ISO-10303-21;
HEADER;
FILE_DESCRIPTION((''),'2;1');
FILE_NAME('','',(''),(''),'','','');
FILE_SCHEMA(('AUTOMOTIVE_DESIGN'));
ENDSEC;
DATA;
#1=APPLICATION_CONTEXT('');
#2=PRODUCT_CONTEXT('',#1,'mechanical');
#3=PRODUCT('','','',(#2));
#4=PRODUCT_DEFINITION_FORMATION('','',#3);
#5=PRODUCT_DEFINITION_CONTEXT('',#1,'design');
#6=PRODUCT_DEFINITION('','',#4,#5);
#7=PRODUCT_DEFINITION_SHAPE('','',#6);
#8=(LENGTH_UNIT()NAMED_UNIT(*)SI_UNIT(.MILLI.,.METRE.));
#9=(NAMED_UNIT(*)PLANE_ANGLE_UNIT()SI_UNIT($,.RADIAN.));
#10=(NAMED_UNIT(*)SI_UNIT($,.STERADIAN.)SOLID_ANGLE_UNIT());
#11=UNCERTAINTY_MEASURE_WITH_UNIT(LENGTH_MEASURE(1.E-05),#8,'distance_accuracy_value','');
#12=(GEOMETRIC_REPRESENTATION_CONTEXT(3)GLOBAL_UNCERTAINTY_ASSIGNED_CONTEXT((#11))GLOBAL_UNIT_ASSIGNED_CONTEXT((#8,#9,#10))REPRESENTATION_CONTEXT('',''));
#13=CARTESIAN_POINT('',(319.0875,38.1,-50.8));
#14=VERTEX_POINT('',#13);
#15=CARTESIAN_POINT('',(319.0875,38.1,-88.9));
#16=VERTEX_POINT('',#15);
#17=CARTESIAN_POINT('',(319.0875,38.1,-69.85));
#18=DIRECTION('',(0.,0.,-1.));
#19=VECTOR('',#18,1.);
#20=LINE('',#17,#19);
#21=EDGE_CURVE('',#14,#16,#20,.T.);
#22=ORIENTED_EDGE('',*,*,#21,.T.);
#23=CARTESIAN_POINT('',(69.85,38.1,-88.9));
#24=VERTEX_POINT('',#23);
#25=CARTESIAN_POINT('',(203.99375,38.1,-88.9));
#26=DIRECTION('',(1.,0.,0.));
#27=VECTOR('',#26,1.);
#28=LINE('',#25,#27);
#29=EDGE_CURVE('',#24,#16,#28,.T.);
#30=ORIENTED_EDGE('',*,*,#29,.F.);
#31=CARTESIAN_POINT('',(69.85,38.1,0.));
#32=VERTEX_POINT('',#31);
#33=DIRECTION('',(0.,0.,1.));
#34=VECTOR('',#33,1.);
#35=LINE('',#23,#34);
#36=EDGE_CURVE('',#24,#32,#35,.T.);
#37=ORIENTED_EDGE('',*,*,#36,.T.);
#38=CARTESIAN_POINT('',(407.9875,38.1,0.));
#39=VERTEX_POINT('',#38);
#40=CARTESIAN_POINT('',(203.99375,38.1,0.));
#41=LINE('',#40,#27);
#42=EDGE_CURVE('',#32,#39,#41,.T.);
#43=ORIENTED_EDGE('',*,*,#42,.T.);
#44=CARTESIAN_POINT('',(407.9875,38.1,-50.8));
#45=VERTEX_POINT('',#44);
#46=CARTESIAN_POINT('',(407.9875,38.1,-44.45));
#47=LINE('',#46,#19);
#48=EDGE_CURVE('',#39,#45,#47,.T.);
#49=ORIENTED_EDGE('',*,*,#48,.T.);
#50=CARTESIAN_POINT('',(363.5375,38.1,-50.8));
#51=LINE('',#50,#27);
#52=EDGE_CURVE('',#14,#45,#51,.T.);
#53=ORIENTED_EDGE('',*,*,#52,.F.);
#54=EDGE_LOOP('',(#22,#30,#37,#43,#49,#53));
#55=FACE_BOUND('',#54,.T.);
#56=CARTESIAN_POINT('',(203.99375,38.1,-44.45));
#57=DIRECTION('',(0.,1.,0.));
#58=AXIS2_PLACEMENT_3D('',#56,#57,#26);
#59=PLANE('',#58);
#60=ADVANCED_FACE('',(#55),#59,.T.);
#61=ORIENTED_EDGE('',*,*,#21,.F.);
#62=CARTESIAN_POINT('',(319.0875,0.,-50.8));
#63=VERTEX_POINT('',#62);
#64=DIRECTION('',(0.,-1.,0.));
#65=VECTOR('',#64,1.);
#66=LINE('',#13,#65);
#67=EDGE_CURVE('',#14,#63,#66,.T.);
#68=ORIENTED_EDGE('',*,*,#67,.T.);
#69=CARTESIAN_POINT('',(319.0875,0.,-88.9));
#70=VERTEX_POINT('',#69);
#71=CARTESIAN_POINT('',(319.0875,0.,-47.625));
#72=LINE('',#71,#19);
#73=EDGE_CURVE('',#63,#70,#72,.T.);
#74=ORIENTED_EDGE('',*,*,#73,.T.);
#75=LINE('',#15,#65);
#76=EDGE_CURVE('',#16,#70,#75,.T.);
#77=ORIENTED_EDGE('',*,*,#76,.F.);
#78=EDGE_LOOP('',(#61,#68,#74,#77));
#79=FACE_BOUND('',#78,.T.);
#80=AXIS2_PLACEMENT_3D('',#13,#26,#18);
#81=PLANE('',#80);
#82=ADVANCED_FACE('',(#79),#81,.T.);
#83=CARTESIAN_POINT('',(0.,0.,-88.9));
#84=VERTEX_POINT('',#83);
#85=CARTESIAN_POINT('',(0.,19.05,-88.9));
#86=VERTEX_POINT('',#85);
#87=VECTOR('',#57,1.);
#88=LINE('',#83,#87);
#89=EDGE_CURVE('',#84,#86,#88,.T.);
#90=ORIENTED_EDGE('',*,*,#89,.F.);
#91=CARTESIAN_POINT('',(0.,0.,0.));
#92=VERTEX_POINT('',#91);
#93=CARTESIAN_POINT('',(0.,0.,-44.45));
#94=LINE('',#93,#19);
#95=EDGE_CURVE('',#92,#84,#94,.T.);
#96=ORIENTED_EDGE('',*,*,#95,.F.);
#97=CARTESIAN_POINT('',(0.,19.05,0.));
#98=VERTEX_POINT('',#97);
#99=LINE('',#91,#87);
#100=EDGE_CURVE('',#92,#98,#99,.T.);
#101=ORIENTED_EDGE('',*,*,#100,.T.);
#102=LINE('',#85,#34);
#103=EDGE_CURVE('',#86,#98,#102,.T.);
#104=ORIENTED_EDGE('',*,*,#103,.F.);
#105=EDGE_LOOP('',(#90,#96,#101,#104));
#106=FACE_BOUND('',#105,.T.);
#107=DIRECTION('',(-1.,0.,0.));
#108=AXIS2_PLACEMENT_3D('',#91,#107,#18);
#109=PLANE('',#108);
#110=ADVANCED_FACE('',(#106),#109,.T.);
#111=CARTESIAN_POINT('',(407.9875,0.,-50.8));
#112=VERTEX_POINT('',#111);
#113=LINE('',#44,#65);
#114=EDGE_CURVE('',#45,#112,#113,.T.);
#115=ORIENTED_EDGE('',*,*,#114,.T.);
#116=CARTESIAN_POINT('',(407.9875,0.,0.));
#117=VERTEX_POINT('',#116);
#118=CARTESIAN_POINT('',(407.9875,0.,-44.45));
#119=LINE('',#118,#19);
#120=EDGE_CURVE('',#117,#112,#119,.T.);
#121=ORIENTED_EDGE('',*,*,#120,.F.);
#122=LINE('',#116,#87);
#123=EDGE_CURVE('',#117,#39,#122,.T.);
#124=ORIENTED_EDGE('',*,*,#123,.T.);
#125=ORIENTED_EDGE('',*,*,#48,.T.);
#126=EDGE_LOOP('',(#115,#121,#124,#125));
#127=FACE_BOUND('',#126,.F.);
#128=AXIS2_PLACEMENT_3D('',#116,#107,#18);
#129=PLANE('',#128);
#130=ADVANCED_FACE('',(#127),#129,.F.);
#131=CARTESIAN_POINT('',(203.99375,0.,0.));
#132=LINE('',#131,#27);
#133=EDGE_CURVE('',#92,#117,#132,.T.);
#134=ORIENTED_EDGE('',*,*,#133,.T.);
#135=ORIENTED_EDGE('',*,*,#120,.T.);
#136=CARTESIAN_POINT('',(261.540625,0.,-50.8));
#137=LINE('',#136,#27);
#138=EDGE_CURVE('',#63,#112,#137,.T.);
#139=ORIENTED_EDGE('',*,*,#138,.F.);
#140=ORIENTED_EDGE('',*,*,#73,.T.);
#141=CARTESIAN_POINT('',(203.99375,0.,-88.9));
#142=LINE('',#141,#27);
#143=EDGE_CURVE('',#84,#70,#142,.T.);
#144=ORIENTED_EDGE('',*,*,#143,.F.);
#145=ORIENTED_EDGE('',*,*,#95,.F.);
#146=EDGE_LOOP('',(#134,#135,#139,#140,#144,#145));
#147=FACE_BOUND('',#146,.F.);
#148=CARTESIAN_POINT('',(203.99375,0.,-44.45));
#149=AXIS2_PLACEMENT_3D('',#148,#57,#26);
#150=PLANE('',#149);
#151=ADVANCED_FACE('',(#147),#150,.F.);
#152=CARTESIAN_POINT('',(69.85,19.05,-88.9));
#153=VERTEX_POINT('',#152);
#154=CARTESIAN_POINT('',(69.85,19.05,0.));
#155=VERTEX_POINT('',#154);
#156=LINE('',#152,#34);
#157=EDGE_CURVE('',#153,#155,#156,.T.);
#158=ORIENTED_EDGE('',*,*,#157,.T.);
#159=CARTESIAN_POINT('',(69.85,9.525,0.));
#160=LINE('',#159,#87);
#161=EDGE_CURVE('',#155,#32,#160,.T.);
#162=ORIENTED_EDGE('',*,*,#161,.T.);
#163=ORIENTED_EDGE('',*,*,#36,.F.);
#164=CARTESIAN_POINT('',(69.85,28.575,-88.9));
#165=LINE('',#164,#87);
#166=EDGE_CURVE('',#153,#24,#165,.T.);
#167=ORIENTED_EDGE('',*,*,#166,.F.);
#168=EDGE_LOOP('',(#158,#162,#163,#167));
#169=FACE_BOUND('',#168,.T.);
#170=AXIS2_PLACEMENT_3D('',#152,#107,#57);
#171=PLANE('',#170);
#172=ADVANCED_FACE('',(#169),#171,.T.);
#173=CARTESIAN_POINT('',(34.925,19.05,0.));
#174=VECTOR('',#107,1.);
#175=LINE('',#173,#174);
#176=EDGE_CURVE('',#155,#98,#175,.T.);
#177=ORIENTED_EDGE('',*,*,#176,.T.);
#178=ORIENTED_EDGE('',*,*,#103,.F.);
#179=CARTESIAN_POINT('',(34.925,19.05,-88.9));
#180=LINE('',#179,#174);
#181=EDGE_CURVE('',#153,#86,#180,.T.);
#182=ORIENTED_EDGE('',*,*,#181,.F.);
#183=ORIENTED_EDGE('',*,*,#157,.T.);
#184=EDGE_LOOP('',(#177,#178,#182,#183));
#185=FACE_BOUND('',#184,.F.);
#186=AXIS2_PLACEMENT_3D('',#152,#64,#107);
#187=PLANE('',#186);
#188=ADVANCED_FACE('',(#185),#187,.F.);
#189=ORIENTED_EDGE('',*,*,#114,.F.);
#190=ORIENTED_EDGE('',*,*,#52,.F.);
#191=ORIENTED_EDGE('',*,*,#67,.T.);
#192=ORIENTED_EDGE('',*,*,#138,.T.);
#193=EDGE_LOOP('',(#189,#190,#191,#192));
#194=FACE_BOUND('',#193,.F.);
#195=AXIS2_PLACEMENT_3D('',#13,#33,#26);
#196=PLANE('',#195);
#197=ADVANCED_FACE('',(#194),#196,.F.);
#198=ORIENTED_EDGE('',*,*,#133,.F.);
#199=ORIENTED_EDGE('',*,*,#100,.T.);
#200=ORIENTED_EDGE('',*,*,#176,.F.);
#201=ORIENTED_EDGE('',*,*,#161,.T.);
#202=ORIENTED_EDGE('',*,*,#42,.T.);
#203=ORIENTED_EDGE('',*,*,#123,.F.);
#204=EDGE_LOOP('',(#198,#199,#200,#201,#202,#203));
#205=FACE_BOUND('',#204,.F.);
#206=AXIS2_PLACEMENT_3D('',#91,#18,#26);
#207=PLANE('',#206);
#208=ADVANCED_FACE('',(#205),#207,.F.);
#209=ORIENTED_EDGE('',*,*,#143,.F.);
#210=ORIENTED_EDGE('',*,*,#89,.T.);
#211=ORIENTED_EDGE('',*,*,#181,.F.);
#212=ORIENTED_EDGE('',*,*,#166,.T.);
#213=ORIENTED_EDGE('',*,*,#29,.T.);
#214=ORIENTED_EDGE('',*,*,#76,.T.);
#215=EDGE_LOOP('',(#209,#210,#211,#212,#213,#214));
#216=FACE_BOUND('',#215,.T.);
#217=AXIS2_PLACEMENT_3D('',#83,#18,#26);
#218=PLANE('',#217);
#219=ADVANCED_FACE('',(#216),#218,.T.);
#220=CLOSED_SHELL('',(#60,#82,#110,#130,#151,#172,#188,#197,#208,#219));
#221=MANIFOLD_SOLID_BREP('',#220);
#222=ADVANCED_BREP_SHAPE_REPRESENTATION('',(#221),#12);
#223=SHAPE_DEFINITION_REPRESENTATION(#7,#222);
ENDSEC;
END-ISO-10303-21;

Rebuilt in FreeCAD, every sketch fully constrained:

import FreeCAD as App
import Part
import Sketcher

V = App.Vector
Q = App.Units.Quantity


def add_polygon(sketch, points):
    """Adds a closed chain of lines whose ends are joined by coincident constraints."""
    first, n = sketch.GeometryCount, len(points)
    for a, b in zip(points, points[1:] + points[:1]):
        sketch.addGeometry(Part.LineSegment(App.Vector(*a, 0), App.Vector(*b, 0)), False)
    for i in range(n):
        sketch.addConstraint(Sketcher.Constraint("Coincident", first + i, 2, first + (i + 1) % n, 1))

doc = App.newDocument("Part")
body = doc.addObject("PartDesign::Body", "Body")

# Sketch on XZ plane
sketch1 = body.newObject("Sketcher::SketchObject", "Sketch")
sketch1.AttachmentSupport = (doc.getObject("XZ_Plane"), [""])
sketch1.MapMode = "FlatFace"
add_polygon(sketch1, [(0, -89), (0, 0), (408, 0), (408, -89)])  # lines 0-3
sketch1.addConstraint(Sketcher.Constraint("Vertical", 0))
sketch1.addConstraint(Sketcher.Constraint("Horizontal", 1))
sketch1.addConstraint(Sketcher.Constraint("Vertical", 2))
sketch1.addConstraint(Sketcher.Constraint("Horizontal", 3))
sketch1.addConstraint(Sketcher.Constraint("Coincident", 0, 2, -1, 1))
sketch1.addConstraint(Sketcher.Constraint("DistanceY", 0, 1, 0, 2, Q("3.5 in")))
sketch1.addConstraint(Sketcher.Constraint("DistanceX", 1, 1, 1, 2, Q("16.0625 in")))
pad1 = body.newObject("PartDesign::Pad", "Pad")
pad1.Profile = sketch1
pad1.Length = Q("1.5 in")
pad1.Reversed = True

# Sketch on XZ plane
sketch2 = body.newObject("Sketcher::SketchObject", "Sketch001")
sketch2.AttachmentSupport = (doc.getObject("XZ_Plane"), [""])
sketch2.MapMode = "FlatFace"
sketch2.AttachmentOffset = App.Placement(V(0, 0, -1.5 * 25.4), App.Rotation())
add_polygon(sketch2, [(319, -89), (319, -51), (408, -51), (408, -89)])  # lines 0-3
sketch2.addConstraint(Sketcher.Constraint("Vertical", 0))
sketch2.addConstraint(Sketcher.Constraint("Horizontal", 1))
sketch2.addConstraint(Sketcher.Constraint("Vertical", 2))
sketch2.addConstraint(Sketcher.Constraint("Horizontal", 3))
sketch2.addConstraint(Sketcher.Constraint("DistanceX", 1, 1, 1, 2, Q("3.5 in")))
sketch2.addConstraint(Sketcher.Constraint("DistanceY", 0, 1, 0, 2, Q("1.5 in")))
sketch2.addConstraint(Sketcher.Constraint("DistanceY", 0, 2, -1, 1, Q("2 in")))
sketch2.addConstraint(Sketcher.Constraint("DistanceX", -1, 1, 0, 2, Q("12.5625 in")))
pocket1 = body.newObject("PartDesign::Pocket", "Pocket")
pocket1.Profile = sketch2
pocket1.Type = "ThroughAll"
pocket1.Reversed = True

# Sketch on XY plane
sketch3 = body.newObject("Sketcher::SketchObject", "Sketch002")
sketch3.AttachmentSupport = (doc.getObject("XY_Plane"), [""])
sketch3.MapMode = "FlatFace"
sketch3.AttachmentOffset = App.Placement(V(0, 0, -3.5 * 25.4), App.Rotation())
add_polygon(sketch3, [(70, 38), (70, 19), (0, 19), (0, 38)])  # lines 0-3
sketch3.addConstraint(Sketcher.Constraint("Vertical", 0))
sketch3.addConstraint(Sketcher.Constraint("Horizontal", 1))
sketch3.addConstraint(Sketcher.Constraint("Vertical", 2))
sketch3.addConstraint(Sketcher.Constraint("Horizontal", 3))
sketch3.addConstraint(Sketcher.Constraint("PointOnObject", 1, 2, -2))
sketch3.addConstraint(Sketcher.Constraint("DistanceX", 1, 2, 1, 1, Q("2.75 in")))
sketch3.addConstraint(Sketcher.Constraint("DistanceY", 0, 2, 0, 1, Q("0.75 in")))
sketch3.addConstraint(Sketcher.Constraint("DistanceY", -1, 1, 2, 2, Q("1.5 in")))
pocket2 = body.newObject("PartDesign::Pocket", "Pocket001")
pocket2.Profile = sketch3
pocket2.Type = "ThroughAll"
pocket2.Reversed = True

doc.recompute()
